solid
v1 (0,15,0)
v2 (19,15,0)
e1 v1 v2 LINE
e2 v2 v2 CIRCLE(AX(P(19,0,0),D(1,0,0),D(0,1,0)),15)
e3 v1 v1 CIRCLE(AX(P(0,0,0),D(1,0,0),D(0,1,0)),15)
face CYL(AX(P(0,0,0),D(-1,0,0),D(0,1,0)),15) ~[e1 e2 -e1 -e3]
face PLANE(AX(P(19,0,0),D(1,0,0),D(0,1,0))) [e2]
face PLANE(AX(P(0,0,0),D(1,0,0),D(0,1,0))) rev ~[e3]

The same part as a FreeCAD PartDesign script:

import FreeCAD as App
import Part
import Sketcher
Q = App.Units.Quantity

doc = App.newDocument("Part")
params = doc.addObject("Spreadsheet::Sheet", "Params")
for row, (alias, value) in enumerate([
    ("sketch1_diameter", "30 mm"),
    ("pad1_length", "19 mm"),
], start=1):
    params.set(f"A{row}", alias)
    params.set(f"B{row}", "=" + value)
    params.setAlias(f"B{row}", alias)

body = doc.addObject("PartDesign::Body", "Body")

# Sketch on YZ plane
sketch1 = body.newObject("Sketcher::SketchObject", "Sketch")
sketch1.AttachmentSupport = (doc.getObject("YZ_Plane"), [""])
sketch1.MapMode = "FlatFace"
sketch1.addGeometry(Part.Circle(App.Vector(0, 0, 0), App.Vector(0, 0, 1), 15), False)
sketch1.addConstraint(Sketcher.Constraint("Coincident", 0, 3, -1, 1))
sketch1.addConstraint(Sketcher.Constraint("Diameter", 0, Q("30 mm")))
sketch1.setExpression("Constraints[1]", "Params.sketch1_diameter")
pad1 = body.newObject("PartDesign::Pad", "Pad")
pad1.Profile = sketch1
pad1.setExpression("Length", "Params.pad1_length")

doc.recompute()
